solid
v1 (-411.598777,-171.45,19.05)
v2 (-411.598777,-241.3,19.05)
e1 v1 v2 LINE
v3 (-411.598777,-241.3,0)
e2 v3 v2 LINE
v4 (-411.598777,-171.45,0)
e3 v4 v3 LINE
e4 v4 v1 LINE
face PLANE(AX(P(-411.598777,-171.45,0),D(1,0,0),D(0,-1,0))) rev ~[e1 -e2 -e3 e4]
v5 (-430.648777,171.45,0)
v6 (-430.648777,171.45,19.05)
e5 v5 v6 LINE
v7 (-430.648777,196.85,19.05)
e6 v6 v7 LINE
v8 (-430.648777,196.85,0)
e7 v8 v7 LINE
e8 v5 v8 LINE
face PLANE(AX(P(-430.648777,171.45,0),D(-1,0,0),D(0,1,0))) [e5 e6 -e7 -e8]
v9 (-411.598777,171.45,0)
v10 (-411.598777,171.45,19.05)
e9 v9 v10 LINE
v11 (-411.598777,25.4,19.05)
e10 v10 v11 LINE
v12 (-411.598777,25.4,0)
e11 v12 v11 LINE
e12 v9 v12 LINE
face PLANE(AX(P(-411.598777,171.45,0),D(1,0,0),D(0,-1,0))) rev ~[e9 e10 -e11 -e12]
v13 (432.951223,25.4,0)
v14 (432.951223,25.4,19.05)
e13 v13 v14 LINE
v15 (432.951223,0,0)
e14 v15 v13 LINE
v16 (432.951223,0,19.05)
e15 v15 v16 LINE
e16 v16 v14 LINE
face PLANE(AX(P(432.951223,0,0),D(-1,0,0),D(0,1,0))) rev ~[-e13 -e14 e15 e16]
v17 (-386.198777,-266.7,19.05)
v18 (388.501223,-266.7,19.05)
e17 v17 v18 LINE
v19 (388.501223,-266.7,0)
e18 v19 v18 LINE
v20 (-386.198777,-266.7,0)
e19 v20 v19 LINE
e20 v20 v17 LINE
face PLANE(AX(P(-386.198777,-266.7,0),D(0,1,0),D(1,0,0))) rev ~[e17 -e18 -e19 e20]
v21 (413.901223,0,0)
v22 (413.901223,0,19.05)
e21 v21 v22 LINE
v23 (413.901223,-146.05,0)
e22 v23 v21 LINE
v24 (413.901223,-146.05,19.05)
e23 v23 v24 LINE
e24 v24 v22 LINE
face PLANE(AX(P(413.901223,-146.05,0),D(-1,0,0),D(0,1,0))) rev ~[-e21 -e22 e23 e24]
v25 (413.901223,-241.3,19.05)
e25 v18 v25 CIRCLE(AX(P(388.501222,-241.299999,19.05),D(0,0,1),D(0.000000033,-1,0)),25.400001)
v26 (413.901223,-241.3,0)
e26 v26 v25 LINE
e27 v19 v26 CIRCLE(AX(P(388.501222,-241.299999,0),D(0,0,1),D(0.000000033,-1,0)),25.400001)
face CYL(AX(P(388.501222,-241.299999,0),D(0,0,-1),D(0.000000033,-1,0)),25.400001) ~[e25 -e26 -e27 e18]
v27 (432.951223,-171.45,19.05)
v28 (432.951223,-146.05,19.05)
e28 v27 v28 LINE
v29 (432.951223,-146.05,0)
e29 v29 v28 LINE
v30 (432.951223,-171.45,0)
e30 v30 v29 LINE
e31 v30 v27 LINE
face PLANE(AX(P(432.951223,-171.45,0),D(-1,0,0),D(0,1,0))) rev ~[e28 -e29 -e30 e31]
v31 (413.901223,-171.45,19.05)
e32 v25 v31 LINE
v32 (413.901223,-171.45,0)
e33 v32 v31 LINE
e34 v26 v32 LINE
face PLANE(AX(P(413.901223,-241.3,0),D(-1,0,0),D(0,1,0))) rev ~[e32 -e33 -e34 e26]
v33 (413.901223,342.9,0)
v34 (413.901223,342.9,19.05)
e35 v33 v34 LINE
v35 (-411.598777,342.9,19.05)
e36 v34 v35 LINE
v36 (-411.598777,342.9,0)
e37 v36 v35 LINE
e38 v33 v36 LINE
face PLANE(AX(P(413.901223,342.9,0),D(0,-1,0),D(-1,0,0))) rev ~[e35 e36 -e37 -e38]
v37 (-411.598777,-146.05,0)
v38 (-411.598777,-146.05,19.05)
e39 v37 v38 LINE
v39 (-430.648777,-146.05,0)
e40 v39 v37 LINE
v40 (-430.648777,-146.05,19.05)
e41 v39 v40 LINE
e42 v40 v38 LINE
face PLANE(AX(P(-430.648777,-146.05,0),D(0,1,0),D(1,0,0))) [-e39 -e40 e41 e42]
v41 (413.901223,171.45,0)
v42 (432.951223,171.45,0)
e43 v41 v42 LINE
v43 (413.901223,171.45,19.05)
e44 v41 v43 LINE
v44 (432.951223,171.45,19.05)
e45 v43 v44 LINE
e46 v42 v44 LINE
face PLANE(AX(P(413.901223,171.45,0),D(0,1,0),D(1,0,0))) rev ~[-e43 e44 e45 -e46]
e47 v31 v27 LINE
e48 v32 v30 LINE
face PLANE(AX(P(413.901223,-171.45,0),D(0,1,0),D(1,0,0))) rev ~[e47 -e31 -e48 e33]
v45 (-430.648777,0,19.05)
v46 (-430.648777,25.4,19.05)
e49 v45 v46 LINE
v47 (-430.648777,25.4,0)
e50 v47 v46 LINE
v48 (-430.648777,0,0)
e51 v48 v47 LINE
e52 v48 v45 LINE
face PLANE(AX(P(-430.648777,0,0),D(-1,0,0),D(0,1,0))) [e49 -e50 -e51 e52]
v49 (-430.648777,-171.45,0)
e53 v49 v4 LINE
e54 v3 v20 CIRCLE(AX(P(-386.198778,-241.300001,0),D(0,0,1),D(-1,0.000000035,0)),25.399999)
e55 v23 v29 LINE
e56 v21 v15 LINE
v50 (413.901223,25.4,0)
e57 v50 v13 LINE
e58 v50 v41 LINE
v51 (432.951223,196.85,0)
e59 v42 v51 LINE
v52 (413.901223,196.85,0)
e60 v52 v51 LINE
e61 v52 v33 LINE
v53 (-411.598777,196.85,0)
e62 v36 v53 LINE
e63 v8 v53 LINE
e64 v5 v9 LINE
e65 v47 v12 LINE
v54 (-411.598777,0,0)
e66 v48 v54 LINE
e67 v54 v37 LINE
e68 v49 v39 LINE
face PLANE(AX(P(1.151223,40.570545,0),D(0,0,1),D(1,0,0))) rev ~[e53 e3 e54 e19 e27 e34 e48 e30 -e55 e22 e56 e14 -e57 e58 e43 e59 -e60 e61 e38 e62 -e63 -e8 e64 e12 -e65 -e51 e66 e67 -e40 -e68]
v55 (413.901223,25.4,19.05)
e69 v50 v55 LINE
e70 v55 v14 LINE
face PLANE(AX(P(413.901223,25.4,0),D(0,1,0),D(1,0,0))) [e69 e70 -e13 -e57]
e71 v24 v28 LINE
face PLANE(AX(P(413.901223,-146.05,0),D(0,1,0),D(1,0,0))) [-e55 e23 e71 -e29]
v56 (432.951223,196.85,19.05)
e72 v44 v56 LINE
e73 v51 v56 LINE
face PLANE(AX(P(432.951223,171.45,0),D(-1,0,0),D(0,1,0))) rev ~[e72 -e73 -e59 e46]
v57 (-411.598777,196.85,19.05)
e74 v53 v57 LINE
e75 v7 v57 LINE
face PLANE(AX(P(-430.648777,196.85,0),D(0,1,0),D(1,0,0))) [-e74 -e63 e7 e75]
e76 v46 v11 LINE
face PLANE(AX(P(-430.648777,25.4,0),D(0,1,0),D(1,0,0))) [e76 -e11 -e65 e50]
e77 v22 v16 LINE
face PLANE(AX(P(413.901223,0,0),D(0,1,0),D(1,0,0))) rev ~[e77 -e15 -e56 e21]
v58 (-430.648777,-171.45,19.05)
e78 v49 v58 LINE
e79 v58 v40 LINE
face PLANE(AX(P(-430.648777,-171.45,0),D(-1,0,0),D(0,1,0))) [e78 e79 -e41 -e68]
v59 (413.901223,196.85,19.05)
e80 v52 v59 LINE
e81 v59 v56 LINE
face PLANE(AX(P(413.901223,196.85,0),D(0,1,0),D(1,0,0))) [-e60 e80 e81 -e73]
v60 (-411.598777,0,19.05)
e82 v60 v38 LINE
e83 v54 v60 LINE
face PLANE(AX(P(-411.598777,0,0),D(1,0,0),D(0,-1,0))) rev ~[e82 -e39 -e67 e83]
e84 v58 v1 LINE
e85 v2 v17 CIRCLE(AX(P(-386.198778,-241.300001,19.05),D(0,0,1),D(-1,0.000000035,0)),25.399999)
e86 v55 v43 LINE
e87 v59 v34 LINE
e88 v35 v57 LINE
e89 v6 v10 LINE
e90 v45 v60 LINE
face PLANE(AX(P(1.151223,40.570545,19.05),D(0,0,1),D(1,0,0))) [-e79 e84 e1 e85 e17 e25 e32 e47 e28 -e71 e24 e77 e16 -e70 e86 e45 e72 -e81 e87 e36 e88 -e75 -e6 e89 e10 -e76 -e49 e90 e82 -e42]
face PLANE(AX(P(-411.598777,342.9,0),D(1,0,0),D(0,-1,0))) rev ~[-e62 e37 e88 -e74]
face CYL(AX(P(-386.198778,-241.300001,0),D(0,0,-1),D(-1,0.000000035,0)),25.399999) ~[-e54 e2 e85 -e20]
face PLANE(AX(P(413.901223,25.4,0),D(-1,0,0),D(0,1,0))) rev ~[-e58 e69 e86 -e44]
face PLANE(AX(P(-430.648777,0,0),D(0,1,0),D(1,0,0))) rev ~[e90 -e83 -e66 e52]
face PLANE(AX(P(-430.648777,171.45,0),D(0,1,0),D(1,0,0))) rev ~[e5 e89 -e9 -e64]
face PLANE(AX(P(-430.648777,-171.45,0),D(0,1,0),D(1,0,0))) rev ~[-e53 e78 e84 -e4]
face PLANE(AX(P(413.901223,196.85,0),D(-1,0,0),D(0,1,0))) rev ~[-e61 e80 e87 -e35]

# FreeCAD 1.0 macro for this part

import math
import FreeCAD as App
import Part
import Sketcher

V = App.Vector
Q = App.Units.Quantity

doc = App.newDocument("Part")
params = doc.addObject("Spreadsheet::Sheet", "Params")
for row, (alias, value) in enumerate([
    ("sketch1_radius", "1 in"),
    ("sketch1_height", "1 in"),
    ("sketch1_width", "32.5 in"),
    ("sketch1_width2", "0.75 in"),
    ("sketch1_height2", "5.75 in"),
    ("pad1_length", "0.75 in"),
], start=1):
    params.set(f"A{row}", alias)
    params.set(f"B{row}", "=" + value)
    params.setAlias(f"B{row}", alias)

body = doc.addObject("PartDesign::Body", "Body")

sketch1 = body.newObject("Sketcher::SketchObject", "Sketch")
sketch1.AttachmentSupport = (doc.getObject("XY_Plane"), [""])
sketch1.MapMode = "FlatFace"
sketch1.addGeometry([
    Part.LineSegment(V(414, 343, 0), V(-412, 343, 0)),
    Part.LineSegment(V(-412, 343, 0), V(-412, 197, 0)),
    Part.LineSegment(V(-412, 197, 0), V(-431, 197, 0)),
    Part.LineSegment(V(-431, 197, 0), V(-431, 171, 0)),
    Part.LineSegment(V(-431, 171, 0), V(-412, 171, 0)),
    Part.LineSegment(V(-412, 171, 0), V(-412, 25, 0)),
    Part.LineSegment(V(-412, 25, 0), V(-431, 25, 0)),
    Part.LineSegment(V(-431, 25, 0), V(-431, 0, 0)),
    Part.LineSegment(V(-431, 0, 0), V(-412, 0, 0)),
    Part.LineSegment(V(-412, 0, 0), V(-412, -146, 0)),
    Part.LineSegment(V(-412, -146, 0), V(-431, -146, 0)),
    Part.LineSegment(V(-431, -146, 0), V(-431, -171, 0)),
    Part.LineSegment(V(-431, -171, 0), V(-412, -171, 0)),
    Part.LineSegment(V(-412, -171, 0), V(-412, -241, 0)),
    Part.ArcOfCircle(Part.Circle(V(-386, -241, 0), V(0, 0, 1), 25), math.radians(180), math.radians(270)),
    Part.LineSegment(V(-386, -267, 0), V(389, -267, 0)),
    Part.ArcOfCircle(Part.Circle(V(389, -241, 0), V(0, 0, 1), 25), math.radians(-90), math.radians(0)),
    Part.LineSegment(V(414, -241, 0), V(414, -171, 0)),
    Part.LineSegment(V(414, -171, 0), V(433, -171, 0)),
    Part.LineSegment(V(433, -171, 0), V(433, -146, 0)),
    Part.LineSegment(V(433, -146, 0), V(414, -146, 0)),
    Part.LineSegment(V(414, -146, 0), V(414, 0, 0)),
    Part.LineSegment(V(414, 0, 0), V(433, 0, 0)),
    Part.LineSegment(V(433, 0, 0), V(433, 25, 0)),
    Part.LineSegment(V(433, 25, 0), V(414, 25, 0)),
    Part.LineSegment(V(414, 25, 0), V(414, 171, 0)),
    Part.LineSegment(V(414, 171, 0), V(433, 171, 0)),
    Part.LineSegment(V(433, 171, 0), V(433, 197, 0)),
    Part.LineSegment(V(433, 197, 0), V(414, 197, 0)),
    Part.LineSegment(V(414, 197, 0), V(414, 343, 0)),
], False)
sketch1.addConstraint([
    Sketcher.Constraint("Coincident", 0, 2, 1, 1),
    Sketcher.Constraint("Coincident", 1, 2, 2, 1),
    Sketcher.Constraint("Coincident", 2, 2, 3, 1),
    Sketcher.Constraint("Coincident", 3, 2, 4, 1),
    Sketcher.Constraint("Coincident", 4, 2, 5, 1),
    Sketcher.Constraint("Coincident", 5, 2, 6, 1),
    Sketcher.Constraint("Coincident", 6, 2, 7, 1),
    Sketcher.Constraint("Coincident", 7, 2, 8, 1),
    Sketcher.Constraint("Coincident", 8, 2, 9, 1),
    Sketcher.Constraint("Coincident", 9, 2, 10, 1),
    Sketcher.Constraint("Coincident", 10, 2, 11, 1),
    Sketcher.Constraint("Coincident", 11, 2, 12, 1),
    Sketcher.Constraint("Coincident", 12, 2, 13, 1),
    Sketcher.Constraint("Tangent", 13, 2, 14, 1),
    Sketcher.Constraint("Tangent", 14, 2, 15, 1),
    Sketcher.Constraint("Tangent", 15, 2, 16, 1),
    Sketcher.Constraint("Tangent", 16, 2, 17, 1),
    Sketcher.Constraint("Coincident", 17, 2, 18, 1),
    Sketcher.Constraint("Coincident", 18, 2, 19, 1),
    Sketcher.Constraint("Coincident", 19, 2, 20, 1),
    Sketcher.Constraint("Coincident", 20, 2, 21, 1),
    Sketcher.Constraint("Coincident", 21, 2, 22, 1),
    Sketcher.Constraint("Coincident", 22, 2, 23, 1),
    Sketcher.Constraint("Coincident", 23, 2, 24, 1),
    Sketcher.Constraint("Coincident", 24, 2, 25, 1),
    Sketcher.Constraint("Coincident", 25, 2, 26, 1),
    Sketcher.Constraint("Coincident", 26, 2, 27, 1),
    Sketcher.Constraint("Coincident", 27, 2, 28, 1),
    Sketcher.Constraint("Coincident", 28, 2, 29, 1),
    Sketcher.Constraint("Coincident", 29, 2, 0, 1),
    Sketcher.Constraint("Horizontal", 0),
    Sketcher.Constraint("Vertical", 1),
    Sketcher.Constraint("Horizontal", 2),
    Sketcher.Constraint("Vertical", 3),
    Sketcher.Constraint("Horizontal", 4),
    Sketcher.Constraint("Vertical", 5),
    Sketcher.Constraint("Horizontal", 6),
    Sketcher.Constraint("Vertical", 7),
    Sketcher.Constraint("Horizontal", 8),
    Sketcher.Constraint("Vertical", 9),
    Sketcher.Constraint("Horizontal", 10),
    Sketcher.Constraint("Vertical", 11),
    Sketcher.Constraint("Horizontal", 12),
    Sketcher.Constraint("Vertical", 13),
    Sketcher.Constraint("Horizontal", 15),
    Sketcher.Constraint("Vertical", 17),
    Sketcher.Constraint("Horizontal", 18),
    Sketcher.Constraint("Vertical", 19),
    Sketcher.Constraint("Horizontal", 20),
    Sketcher.Constraint("Vertical", 21),
    Sketcher.Constraint("Horizontal", 22),
    Sketcher.Constraint("Vertical", 23),
    Sketcher.Constraint("Horizontal", 24),
    Sketcher.Constraint("Vertical", 25),
    Sketcher.Constraint("Horizontal", 26),
    Sketcher.Constraint("Vertical", 27),
    Sketcher.Constraint("Horizontal", 28),
    Sketcher.Constraint("Vertical", 29),
    Sketcher.Constraint("Equal", 14, 16),
    Sketcher.Constraint("Symmetric", 3, 2, 11, 2, -1),
    Sketcher.Constraint("Symmetric", 17, 2, 25, 2, -1),
    Sketcher.Constraint("PointOnObject", 7, 2, -1),
    Sketcher.Constraint("PointOnObject", 21, 2, -1),
    Sketcher.Constraint("Horizontal", 12, 2, 17, 2),
    Sketcher.Constraint("Horizontal", 10, 2, 19, 2),
    Sketcher.Constraint("Horizontal", 6, 2, 23, 2),
    Sketcher.Constraint("Horizontal", 2, 2, 27, 2),
    Sketcher.Constraint("Vertical", 1, 2, 4, 2),
    Sketcher.Constraint("Vertical", 3, 2, 6, 2),
    Sketcher.Constraint("Vertical", 5, 2, 8, 2),
    Sketcher.Constraint("Vertical", 9, 2, 12, 2),
    Sketcher.Constraint("Vertical", 17, 2, 20, 2),
    Sketcher.Constraint("Vertical", 19, 2, 22, 2),
    Sketcher.Constraint("Vertical", 23, 2, 26, 2),
    Sketcher.Constraint("Vertical", 25, 2, 28, 2),
    Sketcher.Constraint("Equal", 12, 18),
    Sketcher.Constraint("Equal", 1, 5),
    Sketcher.Constraint("Equal", 3, 7),
    Sketcher.Constraint("Equal", 5, 9),
    Sketcher.Constraint("Radius", 14, Q("1 in")),
    Sketcher.Constraint("DistanceY", 3, 2, 3, 1, Q("1 in")),
    Sketcher.Constraint("DistanceX", 0, 2, 0, 1, Q("32.5 in")),
    Sketcher.Constraint("DistanceY", 14, 3, 0, 2, Q("23 in")),
    Sketcher.Constraint("DistanceX", 2, 2, 2, 1, Q("0.75 in")),
    Sketcher.Constraint("DistanceY", 1, 2, 1, 1, Q("5.75 in")),
    Sketcher.Constraint("DistanceX", 14, 3, -1, 1, Q("386.198778 mm")),
])
sketch1.setExpression("Constraints[79]", "Params.sketch1_radius")
sketch1.setExpression("Constraints[80]", "Params.sketch1_height")
sketch1.setExpression("Constraints[81]", "Params.sketch1_width")
sketch1.setExpression("Constraints[83]", "Params.sketch1_width2")
sketch1.setExpression("Constraints[84]", "Params.sketch1_height2")
pad1 = body.newObject("PartDesign::Pad", "Pad")
pad1.Profile = sketch1
pad1.setExpression("Length", "Params.pad1_length")

doc.recompute()
